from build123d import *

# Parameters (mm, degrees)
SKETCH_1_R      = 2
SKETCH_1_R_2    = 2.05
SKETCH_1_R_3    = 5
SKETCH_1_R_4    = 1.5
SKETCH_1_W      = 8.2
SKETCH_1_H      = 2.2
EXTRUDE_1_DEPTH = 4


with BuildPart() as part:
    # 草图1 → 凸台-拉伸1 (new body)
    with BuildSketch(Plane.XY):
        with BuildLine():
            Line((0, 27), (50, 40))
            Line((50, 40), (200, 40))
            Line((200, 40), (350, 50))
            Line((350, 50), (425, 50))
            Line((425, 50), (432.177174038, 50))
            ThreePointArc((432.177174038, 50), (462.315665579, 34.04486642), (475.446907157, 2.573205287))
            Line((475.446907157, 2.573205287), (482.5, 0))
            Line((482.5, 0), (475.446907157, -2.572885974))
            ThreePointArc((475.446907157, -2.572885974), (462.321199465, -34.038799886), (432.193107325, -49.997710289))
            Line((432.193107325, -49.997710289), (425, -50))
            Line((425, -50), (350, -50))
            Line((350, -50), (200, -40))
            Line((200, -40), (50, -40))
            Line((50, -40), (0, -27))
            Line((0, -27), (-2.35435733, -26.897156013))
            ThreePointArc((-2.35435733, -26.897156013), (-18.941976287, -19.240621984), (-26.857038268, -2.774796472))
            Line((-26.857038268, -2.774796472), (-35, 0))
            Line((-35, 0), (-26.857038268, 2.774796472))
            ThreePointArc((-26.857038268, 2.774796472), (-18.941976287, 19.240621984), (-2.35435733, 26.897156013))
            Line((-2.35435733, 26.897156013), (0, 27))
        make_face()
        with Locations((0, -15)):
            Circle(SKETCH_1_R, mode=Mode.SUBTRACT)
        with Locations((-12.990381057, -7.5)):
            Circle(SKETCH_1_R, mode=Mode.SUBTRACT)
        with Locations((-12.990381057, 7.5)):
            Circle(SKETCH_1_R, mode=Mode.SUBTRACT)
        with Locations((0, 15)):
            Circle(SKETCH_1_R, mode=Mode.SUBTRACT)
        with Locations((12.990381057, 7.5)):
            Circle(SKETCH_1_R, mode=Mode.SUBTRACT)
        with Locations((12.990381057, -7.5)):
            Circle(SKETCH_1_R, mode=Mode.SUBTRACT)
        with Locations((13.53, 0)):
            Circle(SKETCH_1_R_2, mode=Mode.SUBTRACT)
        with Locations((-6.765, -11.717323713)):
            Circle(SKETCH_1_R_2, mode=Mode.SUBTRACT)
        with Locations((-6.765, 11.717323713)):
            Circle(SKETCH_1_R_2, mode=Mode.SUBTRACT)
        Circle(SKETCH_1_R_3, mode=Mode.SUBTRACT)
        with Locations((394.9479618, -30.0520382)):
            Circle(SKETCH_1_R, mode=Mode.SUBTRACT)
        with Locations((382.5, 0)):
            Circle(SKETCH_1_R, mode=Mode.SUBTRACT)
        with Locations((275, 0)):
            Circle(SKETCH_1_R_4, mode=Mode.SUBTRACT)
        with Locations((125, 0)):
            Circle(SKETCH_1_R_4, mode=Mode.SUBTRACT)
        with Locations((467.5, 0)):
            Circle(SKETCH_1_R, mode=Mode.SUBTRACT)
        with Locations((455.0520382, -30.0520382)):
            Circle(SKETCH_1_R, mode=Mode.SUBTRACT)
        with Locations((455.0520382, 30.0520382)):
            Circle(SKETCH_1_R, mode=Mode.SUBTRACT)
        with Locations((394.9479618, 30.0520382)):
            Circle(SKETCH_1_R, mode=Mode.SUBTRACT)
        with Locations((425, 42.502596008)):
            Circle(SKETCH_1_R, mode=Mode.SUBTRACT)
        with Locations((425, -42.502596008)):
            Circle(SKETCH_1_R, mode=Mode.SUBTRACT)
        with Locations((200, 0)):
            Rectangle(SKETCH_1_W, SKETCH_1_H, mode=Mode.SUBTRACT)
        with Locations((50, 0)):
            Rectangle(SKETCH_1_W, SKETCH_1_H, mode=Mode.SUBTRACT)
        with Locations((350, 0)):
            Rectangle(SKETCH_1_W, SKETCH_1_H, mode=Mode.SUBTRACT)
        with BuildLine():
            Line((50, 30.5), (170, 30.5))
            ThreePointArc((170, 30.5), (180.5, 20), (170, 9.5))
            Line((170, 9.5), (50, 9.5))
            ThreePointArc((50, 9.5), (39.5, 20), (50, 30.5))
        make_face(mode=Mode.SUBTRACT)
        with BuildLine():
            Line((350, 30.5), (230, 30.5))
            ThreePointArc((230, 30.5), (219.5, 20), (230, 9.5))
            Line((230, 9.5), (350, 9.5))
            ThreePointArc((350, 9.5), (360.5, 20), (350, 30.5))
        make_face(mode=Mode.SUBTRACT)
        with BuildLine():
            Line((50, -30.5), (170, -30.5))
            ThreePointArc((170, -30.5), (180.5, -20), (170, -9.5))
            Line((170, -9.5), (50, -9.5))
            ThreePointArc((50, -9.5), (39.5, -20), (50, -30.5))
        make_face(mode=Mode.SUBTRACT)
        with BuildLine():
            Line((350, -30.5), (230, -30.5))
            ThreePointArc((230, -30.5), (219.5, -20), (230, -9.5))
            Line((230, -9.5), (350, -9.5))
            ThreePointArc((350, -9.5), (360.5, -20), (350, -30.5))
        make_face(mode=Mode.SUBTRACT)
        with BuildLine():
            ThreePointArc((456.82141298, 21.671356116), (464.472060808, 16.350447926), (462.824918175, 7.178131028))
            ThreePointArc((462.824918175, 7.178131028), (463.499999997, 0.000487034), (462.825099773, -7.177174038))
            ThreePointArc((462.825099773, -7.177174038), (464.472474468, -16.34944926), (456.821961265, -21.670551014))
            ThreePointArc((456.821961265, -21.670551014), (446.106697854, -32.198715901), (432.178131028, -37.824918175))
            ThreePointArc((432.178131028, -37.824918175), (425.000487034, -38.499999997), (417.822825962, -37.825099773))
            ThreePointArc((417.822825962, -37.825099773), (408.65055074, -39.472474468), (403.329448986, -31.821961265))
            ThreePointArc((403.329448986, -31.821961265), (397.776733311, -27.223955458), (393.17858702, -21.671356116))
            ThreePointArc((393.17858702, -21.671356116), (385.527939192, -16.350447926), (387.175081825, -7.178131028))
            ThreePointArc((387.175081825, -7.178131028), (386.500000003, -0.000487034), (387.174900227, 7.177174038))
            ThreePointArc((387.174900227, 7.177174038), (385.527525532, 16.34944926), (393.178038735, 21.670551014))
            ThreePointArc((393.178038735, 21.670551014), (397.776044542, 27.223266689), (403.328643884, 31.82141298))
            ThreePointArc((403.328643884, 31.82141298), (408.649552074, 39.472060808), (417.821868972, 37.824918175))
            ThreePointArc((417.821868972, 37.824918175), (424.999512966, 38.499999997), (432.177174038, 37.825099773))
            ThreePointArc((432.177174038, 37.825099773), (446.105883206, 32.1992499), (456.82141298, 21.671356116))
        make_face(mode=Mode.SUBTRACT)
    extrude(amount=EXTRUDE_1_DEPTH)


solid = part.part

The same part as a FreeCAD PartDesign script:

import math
import FreeCAD as App
import Part
import Sketcher
from FreeCAD import Vector
Q = App.Units.Quantity

doc = App.newDocument("Part")
body = doc.addObject("PartDesign::Body", "Body")

sketch1 = body.newObject("Sketcher::SketchObject", "Sketch")
sketch1.AttachmentSupport = (doc.getObject("XY_Plane"), [""])
sketch1.MapMode = "FlatFace"
sketch1.addGeometry([
    Part.LineSegment(Vector(50, 40, 0), Vector(0, 27, 0)),
    Part.LineSegment(Vector(0, 27, 0), Vector(-2.354357, 26.897156, 0)),
    Part.ArcOfCircle(Part.Circle(Vector(0, 0, 0), Vector(0, 0, 1), 27), math.radians(95.002455), math.radians(174.101284)),
    Part.LineSegment(Vector(-26.857038, 2.774796, 0), Vector(-35, 0, 0)),
    Part.LineSegment(Vector(-35, 0, 0), Vector(-26.857038, -2.774796, 0)),
    Part.ArcOfCircle(Part.Circle(Vector(0, 0, 0), Vector(0, 0, 1), 27), math.radians(-174.101284), math.radians(-95.002455)),
    Part.LineSegment(Vector(-2.354357, -26.897156, 0), Vector(0, -27, 0)),
    Part.LineSegment(Vector(0, -27, 0), Vector(50, -40, 0)),
    Part.LineSegment(Vector(50, -40, 0), Vector(200, -40, 0)),
    Part.LineSegment(Vector(200, -40, 0), Vector(350, -50, 0)),
    Part.LineSegment(Vector(350, -50, 0), Vector(425, -50, 0)),
    Part.LineSegment(Vector(425, -50, 0), Vector(432.193107, -49.99771, 0)),
    Part.ArcOfCircle(Part.Circle(Vector(425.000018, -0.000034, 0), Vector(0, 0, 1), 50.512456), math.radians(-81.813119), math.radians(-2.919624)),
    Part.LineSegment(Vector(475.446907, -2.572886, 0), Vector(482.5, 0, 0)),
    Part.LineSegment(Vector(482.5, 0, 0), Vector(475.446907, 2.573205, 0)),
    Part.ArcOfCircle(Part.Circle(Vector(425, 0, 0), Vector(0, 0, 1), 50.512492), math.radians(2.920023), math.radians(81.831364)),
    Part.LineSegment(Vector(432.177174, 50, 0), Vector(350, 50, 0)),
    Part.LineSegment(Vector(350, 50, 0), Vector(200, 40, 0)),
    Part.LineSegment(Vector(200, 40, 0), Vector(50, 40, 0)),
    Part.Circle(Vector(425, -42.502596, 0), Vector(0, 0, 1), 2),
    Part.Circle(Vector(455.052038, -30.052038, 0), Vector(0, 0, 1), 2),
    Part.Circle(Vector(394.947962, -30.052038, 0), Vector(0, 0, 1), 2),
    Part.ArcOfCircle(Part.Circle(Vector(456.49967, 13.048057, 0), Vector(0, 0, 1), 8.629299), math.radians(-42.861784), math.radians(87.863234)),
    Part.ArcOfCircle(Part.Circle(Vector(425, 0, 0), Vector(0, 0, 1), 38.5), math.radians(-10.743939), math.radians(10.745388)),
    Part.ArcOfCircle(Part.Circle(Vector(456.5, -13.04726, 0), Vector(0, 0, 1), 8.629299), math.radians(-87.861784), math.radians(42.863234)),
    Part.ArcOfCircle(Part.Circle(Vector(425, 0, 0), Vector(0, 0, 1), 38.5), math.radians(-79.254612), math.radians(-34.254612)),
    Part.ArcOfCircle(Part.Circle(Vector(425, 0, 0), Vector(0, 0, 1), 38.5), math.radians(-100.743939), math.radians(-79.254612)),
    Part.ArcOfCircle(Part.Circle(Vector(411.95274, -31.5, 0), Vector(0, 0, 1), 8.629299), math.radians(-177.861784), math.radians(-47.136766)),
    Part.ArcOfCircle(Part.Circle(Vector(425, 0, 0), Vector(0, 0, 1), 38.5), math.radians(-145.743939), math.radians(-124.254612)),
    Part.ArcOfCircle(Part.Circle(Vector(393.50033, -13.048057, 0), Vector(0, 0, 1), 8.629299), math.radians(137.138216), math.radians(267.863234)),
    Part.ArcOfCircle(Part.Circle(Vector(425, 0, 0), Vector(0, 0, 1), 38.5), math.radians(169.256061), math.radians(190.745388)),
    Part.ArcOfCircle(Part.Circle(Vector(393.5, 13.04726, 0), Vector(0, 0, 1), 8.629299), math.radians(92.138216), math.radians(222.863234)),
    Part.ArcOfCircle(Part.Circle(Vector(425, 0, 0), Vector(0, 0, 1), 38.5), math.radians(124.256061), math.radians(145.745388)),
    Part.ArcOfCircle(Part.Circle(Vector(411.951943, 31.49967, 0), Vector(0, 0, 1), 8.629299), math.radians(47.138216), math.radians(177.863234)),
    Part.ArcOfCircle(Part.Circle(Vector(425, 0, 0), Vector(0, 0, 1), 38.5), math.radians(79.256061), math.radians(100.745388)),
    Part.ArcOfCircle(Part.Circle(Vector(425, 0, 0), Vector(0, 0, 1), 38.5), math.radians(34.256061), math.radians(79.256061)),
    Part.LineSegment(Vector(350, -30.5, 0), Vector(230, -30.5, 0)),
    Part.ArcOfCircle(Part.Circle(Vector(230, -20, 0), Vector(0, 0, 1), 10.5), math.radians(90), math.radians(270)),
    Part.LineSegment(Vector(230, -9.5, 0), Vector(350, -9.5, 0)),
    Part.ArcOfCircle(Part.Circle(Vector(350, -20, 0), Vector(0, 0, 1), 10.5), math.radians(-90), math.radians(90)),
    Part.ArcOfCircle(Part.Circle(Vector(50, -20, 0), Vector(0, 0, 1), 10.5), math.radians(90), math.radians(270)),
    Part.LineSegment(Vector(50, -9.5, 0), Vector(170, -9.5, 0)),
    Part.ArcOfCircle(Part.Circle(Vector(170, -20, 0), Vector(0, 0, 1), 10.5), math.radians(-90), math.radians(90)),
    Part.LineSegment(Vector(170, -30.5, 0), Vector(50, -30.5, 0)),
    Part.Circle(Vector(0, -15, 0), Vector(0, 0, 1), 2),
    Part.Circle(Vector(-6.765, -11.717324, 0), Vector(0, 0, 1), 2.05),
    Part.Circle(Vector(12.990381, -7.5, 0), Vector(0, 0, 1), 2),
    Part.Circle(Vector(-12.990381, -7.5, 0), Vector(0, 0, 1), 2),
    Part.Circle(Vector(467.5, 0, 0), Vector(0, 0, 1), 2),
    Part.Circle(Vector(382.5, 0, 0), Vector(0, 0, 1), 2),
    Part.LineSegment(Vector(345.9, -1.1, 0), Vector(345.9, 1.1, 0)),
    Part.LineSegment(Vector(345.9, 1.1, 0), Vector(354.1, 1.1, 0)),
    Part.LineSegment(Vector(354.1, 1.1, 0), Vector(354.1, -1.1, 0)),
    Part.LineSegment(Vector(354.1, -1.1, 0), Vector(345.9, -1.1, 0)),
    Part.Circle(Vector(275, 0, 0), Vector(0, 0, 1), 1.5),
    Part.ArcOfCircle(Part.Circle(Vector(350, 20, 0), Vector(0, 0, 1), 10.5), math.radians(-90), math.radians(90)),
    Part.LineSegment(Vector(350, 9.5, 0), Vector(230, 9.5, 0)),
    Part.ArcOfCircle(Part.Circle(Vector(230, 20, 0), Vector(0, 0, 1), 10.5), math.radians(90), math.radians(270)),
    Part.LineSegment(Vector(230, 30.5, 0), Vector(350, 30.5, 0)),
    Part.Circle(Vector(455.052038, 30.052038, 0), Vector(0, 0, 1), 2),
    Part.Circle(Vector(394.947962, 30.052038, 0), Vector(0, 0, 1), 2),
    Part.Circle(Vector(425, 42.502596, 0), Vector(0, 0, 1), 2),
    Part.LineSegment(Vector(195.9, -1.1, 0), Vector(195.9, 1.1, 0)),
    Part.LineSegment(Vector(195.9, 1.1, 0), Vector(204.1, 1.1, 0)),
    Part.LineSegment(Vector(204.1, 1.1, 0), Vector(204.1, -1.1, 0)),
    Part.LineSegment(Vector(204.1, -1.1, 0), Vector(195.9, -1.1, 0)),
    Part.Circle(Vector(125, 0, 0), Vector(0, 0, 1), 1.5),
    Part.LineSegment(Vector(50, 30.5, 0), Vector(170, 30.5, 0)),
    Part.ArcOfCircle(Part.Circle(Vector(170, 20, 0), Vector(0, 0, 1), 10.5), math.radians(-90), math.radians(90)),
    Part.LineSegment(Vector(170, 9.5, 0), Vector(50, 9.5, 0)),
    Part.ArcOfCircle(Part.Circle(Vector(50, 20, 0), Vector(0, 0, 1), 10.5), math.radians(90), math.radians(270)),
    Part.LineSegment(Vector(45.9, -1.1, 0), Vector(45.9, 1.1, 0)),
    Part.LineSegment(Vector(45.9, 1.1, 0), Vector(54.1, 1.1, 0)),
    Part.LineSegment(Vector(54.1, 1.1, 0), Vector(54.1, -1.1, 0)),
    Part.LineSegment(Vector(54.1, -1.1, 0), Vector(45.9, -1.1, 0)),
    Part.Circle(Vector(13.53, 0, 0), Vector(0, 0, 1), 2.05),
    Part.Circle(Vector(0, 0, 0), Vector(0, 0, 1), 5),
    Part.Circle(Vector(12.990381, 7.5, 0), Vector(0, 0, 1), 2),
    Part.Circle(Vector(-12.990381, 7.5, 0), Vector(0, 0, 1), 2),
    Part.Circle(Vector(-6.765, 11.717324, 0), Vector(0, 0, 1), 2.05),
    Part.Circle(Vector(0, 15, 0), Vector(0, 0, 1), 2),
], False)
sketch1.addConstraint([
    Sketcher.Constraint("Coincident", 0, 2, 1, 1),
    Sketcher.Constraint("Coincident", 1, 2, 2, 1),
    Sketcher.Constraint("Coincident", 2, 2, 3, 1),
    Sketcher.Constraint("Coincident", 3, 2, 4, 1),
    Sketcher.Constraint("Coincident", 4, 2, 5, 1),
    Sketcher.Constraint("Coincident", 5, 2, 6, 1),
    Sketcher.Constraint("Coincident", 6, 2, 7, 1),
    Sketcher.Constraint("Coincident", 7, 2, 8, 1),
    Sketcher.Constraint("Coincident", 8, 2, 9, 1),
    Sketcher.Constraint("Coincident", 9, 2, 10, 1),
    Sketcher.Constraint("Coincident", 10, 2, 11, 1),
    Sketcher.Constraint("Coincident", 11, 2, 12, 1),
    Sketcher.Constraint("Coincident", 12, 2, 13, 1),
    Sketcher.Constraint("Coincident", 13, 2, 14, 1),
    Sketcher.Constraint("Coincident", 14, 2, 15, 1),
    Sketcher.Constraint("Coincident", 15, 2, 16, 1),
    Sketcher.Constraint("Coincident", 16, 2, 17, 1),
    Sketcher.Constraint("Coincident", 17, 2, 18, 1),
    Sketcher.Constraint("Coincident", 18, 2, 0, 1),
    Sketcher.Constraint("Coincident", 22, 1, 23, 2),
    Sketcher.Constraint("Coincident", 23, 1, 24, 2),
    Sketcher.Constraint("Coincident", 24, 1, 25, 2),
    Sketcher.Constraint("Tangent", 25, 1, 26, 2),
    Sketcher.Constraint("Coincident", 26, 1, 27, 2),
    Sketcher.Constraint("Coincident", 27, 1, 28, 2),
    Sketcher.Constraint("Coincident", 28, 1, 29, 2),
    Sketcher.Constraint("Coincident", 29, 1, 30, 2),
    Sketcher.Constraint("Coincident", 30, 1, 31, 2),
    Sketcher.Constraint("Coincident", 31, 1, 32, 2),
    Sketcher.Constraint("Coincident", 32, 1, 33, 2),
    Sketcher.Constraint("Coincident", 33, 1, 34, 2),
    Sketcher.Constraint("Tangent", 34, 1, 35, 2),
    Sketcher.Constraint("Coincident", 35, 1, 22, 2),
    Sketcher.Constraint("Tangent", 36, 2, 37, 2),
    Sketcher.Constraint("Tangent", 37, 1, 38, 1),
    Sketcher.Constraint("Tangent", 38, 2, 39, 2),
    Sketcher.Constraint("Tangent", 39, 1, 36, 1),
    Sketcher.Constraint("Tangent", 40, 1, 41, 1),
    Sketcher.Constraint("Tangent", 41, 2, 42, 2),
    Sketcher.Constraint("Tangent", 42, 1, 43, 1),
    Sketcher.Constraint("Tangent", 43, 2, 40, 2),
    Sketcher.Constraint("Coincident", 50, 2, 51, 1),
    Sketcher.Constraint("Coincident", 51, 2, 52, 1),
    Sketcher.Constraint("Coincident", 52, 2, 53, 1),
    Sketcher.Constraint("Coincident", 53, 2, 50, 1),
    Sketcher.Constraint("Tangent", 55, 1, 56, 1),
    Sketcher.Constraint("Tangent", 56, 2, 57, 2),
    Sketcher.Constraint("Tangent", 57, 1, 58, 1),
    Sketcher.Constraint("Tangent", 58, 2, 55, 2),
    Sketcher.Constraint("Coincident", 62, 2, 63, 1),
    Sketcher.Constraint("Coincident", 63, 2, 64, 1),
    Sketcher.Constraint("Coincident", 64, 2, 65, 1),
    Sketcher.Constraint("Coincident", 65, 2, 62, 1),
    Sketcher.Constraint("Tangent", 67, 2, 68, 2),
    Sketcher.Constraint("Tangent", 68, 1, 69, 1),
    Sketcher.Constraint("Tangent", 69, 2, 70, 2),
    Sketcher.Constraint("Tangent", 70, 1, 67, 1),
    Sketcher.Constraint("Coincident", 71, 2, 72, 1),
    Sketcher.Constraint("Coincident", 72, 2, 73, 1),
    Sketcher.Constraint("Coincident", 73, 2, 74, 1),
    Sketcher.Constraint("Coincident", 74, 2, 71, 1),
    Sketcher.Constraint("Horizontal", 8),
    Sketcher.Constraint("Horizontal", 10),
    Sketcher.Constraint("Horizontal", 16),
    Sketcher.Constraint("Horizontal", 18),
    Sketcher.Constraint("Horizontal", 36),
    Sketcher.Constraint("Horizontal", 38),
    Sketcher.Constraint("Horizontal", 41),
    Sketcher.Constraint("Horizontal", 43),
    Sketcher.Constraint("Vertical", 50),
    Sketcher.Constraint("Horizontal", 51),
    Sketcher.Constraint("Vertical", 52),
    Sketcher.Constraint("Horizontal", 53),
    Sketcher.Constraint("Horizontal", 56),
    Sketcher.Constraint("Horizontal", 58),
    Sketcher.Constraint("Vertical", 62),
    Sketcher.Constraint("Horizontal", 63),
    Sketcher.Constraint("Vertical", 64),
    Sketcher.Constraint("Horizontal", 65),
    Sketcher.Constraint("Horizontal", 67),
    Sketcher.Constraint("Horizontal", 69),
    Sketcher.Constraint("Vertical", 71),
    Sketcher.Constraint("Horizontal", 72),
    Sketcher.Constraint("Vertical", 73),
    Sketcher.Constraint("Horizontal", 74),
    Sketcher.Constraint("Coincident", 2, 3, -1, 1),
    Sketcher.Constraint("Coincident", 5, 3, -1, 1),
    Sketcher.Constraint("Coincident", 76, 3, -1, 1),
    Sketcher.Constraint("Coincident", 23, 3, 15, 3),
    Sketcher.Constraint("Coincident", 25, 3, 15, 3),
    Sketcher.Constraint("Coincident", 28, 3, 15, 3),
    Sketcher.Constraint("Coincident", 30, 3, 15, 3),
    Sketcher.Constraint("Coincident", 32, 3, 15, 3),
    Sketcher.Constraint("Coincident", 34, 3, 15, 3),
    Sketcher.Constraint("Equal", 2, 5),
    Sketcher.Constraint("Equal", 19, 20),
    Sketcher.Constraint("Equal", 20, 21),
    Sketcher.Constraint("Equal", 22, 24),
    Sketcher.Constraint("Equal", 23, 25),
    Sketcher.Constraint("Equal", 25, 26),
    Sketcher.Constraint("Equal", 24, 27),
    Sketcher.Constraint("Equal", 26, 28),
    Sketcher.Constraint("Equal", 27, 29),
    Sketcher.Constraint("Equal", 28, 30),
    Sketcher.Constraint("Equal", 29, 31),
    Sketcher.Constraint("Equal", 30, 32),
    Sketcher.Constraint("Equal", 31, 33),
    Sketcher.Constraint("Equal", 32, 34),
    Sketcher.Constraint("Equal", 34, 35),
    Sketcher.Constraint("Equal", 39, 40),
    Sketcher.Constraint("Equal", 21, 44),
    Sketcher.Constraint("Equal", 44, 46),
    Sketcher.Constraint("Equal", 46, 47),
    Sketcher.Constraint("Equal", 47, 48),
    Sketcher.Constraint("Equal", 48, 49),
    Sketcher.Constraint("Equal", 42, 55),
    Sketcher.Constraint("Equal", 49, 59),
    Sketcher.Constraint("Equal", 59, 60),
    Sketcher.Constraint("Equal", 60, 61),
    Sketcher.Constraint("Equal", 54, 66),
    Sketcher.Constraint("Equal", 57, 68),
    Sketcher.Constraint("Equal", 45, 75),
    Sketcher.Constraint("Equal", 61, 77),
    Sketcher.Constraint("Equal", 77, 78),
    Sketcher.Constraint("Equal", 75, 79),
    Sketcher.Constraint("Equal", 78, 80),
    Sketcher.Constraint("Symmetric", 47, 3, 77, 3, -1, 1),
    Sketcher.Constraint("Symmetric", 46, 3, 78, 3, -1, 1),
    Sketcher.Constraint("Symmetric", 44, 3, 80, 3, -1, 1),
    Sketcher.Constraint("Symmetric", 0, 2, 6, 2, -1, 1),
    Sketcher.Constraint("Symmetric", 46, 3, 47, 3, -2),
    Sketcher.Constraint("Symmetric", 39, 3, 55, 3, -1),
    Sketcher.Constraint("Symmetric", 20, 3, 59, 3, -1),
    Sketcher.Constraint("Symmetric", 21, 3, 60, 3, -1),
    Sketcher.Constraint("Symmetric", 19, 3, 61, 3, -1),
    Sketcher.Constraint("Symmetric", 42, 3, 68, 3, -1),
    Sketcher.Constraint("Symmetric", 45, 3, 79, 3, -1),
    Sketcher.Constraint("Symmetric", 9, 2, 16, 2, -1),
    Sketcher.Constraint("Symmetric", 8, 2, 17, 2, -1),
    Sketcher.Constraint("PointOnObject", 15, 3, -1),
    Sketcher.Constraint("PointOnObject", 44, 3, -2),
    Sketcher.Constraint("PointOnObject", 48, 3, -1),
    Sketcher.Constraint("PointOnObject", 49, 3, -1),
    Sketcher.Constraint("PointOnObject", 54, 3, -1),
    Sketcher.Constraint("PointOnObject", 66, 3, -1),
    Sketcher.Constraint("PointOnObject", 75, 3, -1),
    Sketcher.Constraint("PointOnObject", 0, 2, -2),
    Sketcher.Constraint("PointOnObject", 3, 2, -1),
    Sketcher.Constraint("PointOnObject", 13, 2, -1),
    Sketcher.Constraint("Horizontal", 20, 3, 21, 3),
    Sketcher.Constraint("Horizontal", 39, 3, 40, 3),
    Sketcher.Constraint("Horizontal", 51, 2, 62, 2),
    Sketcher.Constraint("Horizontal", 53, 2, 64, 2),
    Sketcher.Constraint("Horizontal", 63, 2, 71, 2),
    Sketcher.Constraint("Horizontal", 65, 2, 73, 2),
    Sketcher.Constraint("Vertical", 15, 3, 19, 3),
    Sketcher.Constraint("Vertical", 37, 3, 57, 3),
    Sketcher.Constraint("Vertical", 40, 3, 70, 3),
    Sketcher.Constraint("Vertical", 2, 2, 4, 2),
    Sketcher.Constraint("Vertical", 1, 2, 5, 2),
    Sketcher.Constraint("Vertical", 70, 3, 7, 2),
    Sketcher.Constraint("Vertical", 55, 3, 9, 2),
    Sketcher.Constraint("Vertical", 61, 3, 10, 2),
    Sketcher.Constraint("Vertical", 12, 2, 14, 2),
    Sketcher.Constraint("Vertical", 7, 2, 18, 2),
    Sketcher.Constraint("Vertical", 15, 2, 34, 1),
    Sketcher.Constraint("Equal", 38, 41),
    Sketcher.Constraint("Equal", 53, 63),
    Sketcher.Constraint("Equal", 65, 72),
    Sketcher.Constraint("Diameter", 19, Q("4 mm")),
    Sketcher.Constraint("Diameter", 54, Q("3 mm")),
    Sketcher.Constraint("Diameter", 76, Q("10 mm")),
    Sketcher.Constraint("Radius", 2, Q("27 mm")),
    Sketcher.Constraint("Diameter", 45, Q("4.1 mm")),
    Sketcher.Constraint("Radius", 23, Q("38.5 mm")),
    Sketcher.Constraint("Radius", 37, Q("10.5 mm")),
    Sketcher.Constraint("DistanceX", 8, 1, 8, 2, Q("150 mm")),
    Sketcher.Constraint("DistanceX", 10, 1, 10, 2, Q("75 mm")),
    Sketcher.Constraint("DistanceX", 36, 2, 36, 1, Q("120 mm")),
    Sketcher.Constraint("DistanceX", 51, 1, 51, 2, Q("8.2 mm")),
    Sketcher.Constraint("DistanceY", 50, 1, 50, 2, Q("2.2 mm")),
    Sketcher.Constraint("DistanceX", -1, 1, 15, 3, Q("425 mm")),
    Sketcher.Constraint("DistanceY", 37, 3, -1, 1, Q("20 mm")),
    Sketcher.Constraint("DistanceX", -1, 1, 40, 3, Q("50 mm")),
    Sketcher.Constraint("DistanceY", 44, 3, -1, 1, Q("15 mm")),
    Sketcher.Constraint("DistanceX", -1, 1, 54, 3, Q("275 mm")),
    Sketcher.Constraint("DistanceX", -1, 1, 66, 3, Q("125 mm")),
    Sketcher.Constraint("DistanceY", -1, 1, 0, 2, Q("27 mm")),
    Sketcher.Constraint("DistanceX", 3, 2, -1, 1, Q("35 mm")),
    Sketcher.Constraint("DistanceY", 7, 2, -1, 1, Q("40 mm")),
    Sketcher.Constraint("DistanceY", 9, 2, -1, 1, Q("50 mm")),
    Sketcher.Constraint("DistanceX", -1, 1, 24, 3, Q("456.5 mm")),
    Sketcher.Constraint("DistanceY", 27, 3, -1, 1, Q("31.5 mm")),
    Sketcher.Constraint("DistanceX", -1, 1, 31, 3, Q("393.5 mm")),
    Sketcher.Constraint("DistanceY", 46, 3, -1, 1, Q("7.5 mm")),
    Sketcher.Constraint("DistanceX", -1, 1, 48, 3, Q("467.5 mm")),
    Sketcher.Constraint("DistanceX", -1, 1, 49, 3, Q("382.5 mm")),
    Sketcher.Constraint("DistanceX", -1, 1, 13, 2, Q("482.5 mm")),
    Sketcher.Constraint("DistanceX", -1, 1, 50, 2, Q("345.9 mm")),
    Sketcher.Constraint("DistanceY", -1, 1, 50, 2, Q("1.1 mm")),
    Sketcher.Constraint("DistanceX", -1, 1, 62, 2, Q("195.9 mm")),
    Sketcher.Constraint("DistanceX", -1, 1, 71, 2, Q("45.9 mm")),
    Sketcher.Constraint("Radius", 22, Q("8.629299 mm")),
    Sketcher.Constraint("DistanceX", -1, 1, 75, 3, Q("13.53 mm")),
    Sketcher.Constraint("Radius", 15, Q("50.512492 mm")),
    Sketcher.Constraint("DistanceX", 45, 3, -1, 1, Q("6.765 mm")),
    Sketcher.Constraint("Radius", 12, Q("50.512456 mm")),
    Sketcher.Constraint("DistanceX", -1, 1, 23, 1, Q("462.8251 mm")),
    Sketcher.Constraint("DistanceY", 26, 1, -1, 1, Q("37.8251 mm")),
    Sketcher.Constraint("DistanceX", -1, 1, 30, 1, Q("387.1749 mm")),
    Sketcher.Constraint("Distance", 3, Q("8.602751 mm")),
    Sketcher.Constraint("Distance", 13, Q("7.50772 mm")),
    Sketcher.Constraint("Distance", 14, Q("7.50783 mm")),
    Sketcher.Constraint("DistanceX", -1, 1, 20, 3, Q("455.052038 mm")),
    Sketcher.Constraint("DistanceY", 20, 3, -1, 1, Q("30.052038 mm")),
    Sketcher.Constraint("DistanceX", -1, 1, 21, 3, Q("394.947962 mm")),
    Sketcher.Constraint("DistanceX", -1, 1, 22, 3, Q("456.49967 mm")),
    Sketcher.Constraint("DistanceX", -1, 1, 29, 3, Q("393.50033 mm")),
    Sketcher.Constraint("DistanceY", -1, 1, 33, 3, Q("31.49967 mm")),
    Sketcher.Constraint("DistanceX", -1, 1, 46, 3, Q("12.990381 mm")),
    Sketcher.Constraint("DistanceY", 11, 2, -1, 1, Q("49.99771 mm")),
    Sketcher.Constraint("DistanceX", -1, 1, 22, 1, Q("462.824918 mm")),
    Sketcher.Constraint("DistanceX", -1, 1, 25, 1, Q("432.178131 mm")),
    Sketcher.Constraint("DistanceX", -1, 1, 29, 1, Q("387.175082 mm")),
    Sketcher.Constraint("DistanceX", -1, 1, 33, 1, Q("417.821869 mm")),
    Sketcher.Constraint("Distance", 1, Q("2.356602 mm")),
    Sketcher.Constraint("Distance", 11, Q("7.193108 mm")),
    Sketcher.Constraint("DistanceY", 19, 3, -1, 1, Q("42.502596 mm")),
    Sketcher.Constraint("DistanceY", 45, 3, -1, 1, Q("11.717324 mm")),
])
pad1 = body.newObject("PartDesign::Pad", "Pad")
pad1.Profile = sketch1
pad1.Length = 4

doc.recompute()
